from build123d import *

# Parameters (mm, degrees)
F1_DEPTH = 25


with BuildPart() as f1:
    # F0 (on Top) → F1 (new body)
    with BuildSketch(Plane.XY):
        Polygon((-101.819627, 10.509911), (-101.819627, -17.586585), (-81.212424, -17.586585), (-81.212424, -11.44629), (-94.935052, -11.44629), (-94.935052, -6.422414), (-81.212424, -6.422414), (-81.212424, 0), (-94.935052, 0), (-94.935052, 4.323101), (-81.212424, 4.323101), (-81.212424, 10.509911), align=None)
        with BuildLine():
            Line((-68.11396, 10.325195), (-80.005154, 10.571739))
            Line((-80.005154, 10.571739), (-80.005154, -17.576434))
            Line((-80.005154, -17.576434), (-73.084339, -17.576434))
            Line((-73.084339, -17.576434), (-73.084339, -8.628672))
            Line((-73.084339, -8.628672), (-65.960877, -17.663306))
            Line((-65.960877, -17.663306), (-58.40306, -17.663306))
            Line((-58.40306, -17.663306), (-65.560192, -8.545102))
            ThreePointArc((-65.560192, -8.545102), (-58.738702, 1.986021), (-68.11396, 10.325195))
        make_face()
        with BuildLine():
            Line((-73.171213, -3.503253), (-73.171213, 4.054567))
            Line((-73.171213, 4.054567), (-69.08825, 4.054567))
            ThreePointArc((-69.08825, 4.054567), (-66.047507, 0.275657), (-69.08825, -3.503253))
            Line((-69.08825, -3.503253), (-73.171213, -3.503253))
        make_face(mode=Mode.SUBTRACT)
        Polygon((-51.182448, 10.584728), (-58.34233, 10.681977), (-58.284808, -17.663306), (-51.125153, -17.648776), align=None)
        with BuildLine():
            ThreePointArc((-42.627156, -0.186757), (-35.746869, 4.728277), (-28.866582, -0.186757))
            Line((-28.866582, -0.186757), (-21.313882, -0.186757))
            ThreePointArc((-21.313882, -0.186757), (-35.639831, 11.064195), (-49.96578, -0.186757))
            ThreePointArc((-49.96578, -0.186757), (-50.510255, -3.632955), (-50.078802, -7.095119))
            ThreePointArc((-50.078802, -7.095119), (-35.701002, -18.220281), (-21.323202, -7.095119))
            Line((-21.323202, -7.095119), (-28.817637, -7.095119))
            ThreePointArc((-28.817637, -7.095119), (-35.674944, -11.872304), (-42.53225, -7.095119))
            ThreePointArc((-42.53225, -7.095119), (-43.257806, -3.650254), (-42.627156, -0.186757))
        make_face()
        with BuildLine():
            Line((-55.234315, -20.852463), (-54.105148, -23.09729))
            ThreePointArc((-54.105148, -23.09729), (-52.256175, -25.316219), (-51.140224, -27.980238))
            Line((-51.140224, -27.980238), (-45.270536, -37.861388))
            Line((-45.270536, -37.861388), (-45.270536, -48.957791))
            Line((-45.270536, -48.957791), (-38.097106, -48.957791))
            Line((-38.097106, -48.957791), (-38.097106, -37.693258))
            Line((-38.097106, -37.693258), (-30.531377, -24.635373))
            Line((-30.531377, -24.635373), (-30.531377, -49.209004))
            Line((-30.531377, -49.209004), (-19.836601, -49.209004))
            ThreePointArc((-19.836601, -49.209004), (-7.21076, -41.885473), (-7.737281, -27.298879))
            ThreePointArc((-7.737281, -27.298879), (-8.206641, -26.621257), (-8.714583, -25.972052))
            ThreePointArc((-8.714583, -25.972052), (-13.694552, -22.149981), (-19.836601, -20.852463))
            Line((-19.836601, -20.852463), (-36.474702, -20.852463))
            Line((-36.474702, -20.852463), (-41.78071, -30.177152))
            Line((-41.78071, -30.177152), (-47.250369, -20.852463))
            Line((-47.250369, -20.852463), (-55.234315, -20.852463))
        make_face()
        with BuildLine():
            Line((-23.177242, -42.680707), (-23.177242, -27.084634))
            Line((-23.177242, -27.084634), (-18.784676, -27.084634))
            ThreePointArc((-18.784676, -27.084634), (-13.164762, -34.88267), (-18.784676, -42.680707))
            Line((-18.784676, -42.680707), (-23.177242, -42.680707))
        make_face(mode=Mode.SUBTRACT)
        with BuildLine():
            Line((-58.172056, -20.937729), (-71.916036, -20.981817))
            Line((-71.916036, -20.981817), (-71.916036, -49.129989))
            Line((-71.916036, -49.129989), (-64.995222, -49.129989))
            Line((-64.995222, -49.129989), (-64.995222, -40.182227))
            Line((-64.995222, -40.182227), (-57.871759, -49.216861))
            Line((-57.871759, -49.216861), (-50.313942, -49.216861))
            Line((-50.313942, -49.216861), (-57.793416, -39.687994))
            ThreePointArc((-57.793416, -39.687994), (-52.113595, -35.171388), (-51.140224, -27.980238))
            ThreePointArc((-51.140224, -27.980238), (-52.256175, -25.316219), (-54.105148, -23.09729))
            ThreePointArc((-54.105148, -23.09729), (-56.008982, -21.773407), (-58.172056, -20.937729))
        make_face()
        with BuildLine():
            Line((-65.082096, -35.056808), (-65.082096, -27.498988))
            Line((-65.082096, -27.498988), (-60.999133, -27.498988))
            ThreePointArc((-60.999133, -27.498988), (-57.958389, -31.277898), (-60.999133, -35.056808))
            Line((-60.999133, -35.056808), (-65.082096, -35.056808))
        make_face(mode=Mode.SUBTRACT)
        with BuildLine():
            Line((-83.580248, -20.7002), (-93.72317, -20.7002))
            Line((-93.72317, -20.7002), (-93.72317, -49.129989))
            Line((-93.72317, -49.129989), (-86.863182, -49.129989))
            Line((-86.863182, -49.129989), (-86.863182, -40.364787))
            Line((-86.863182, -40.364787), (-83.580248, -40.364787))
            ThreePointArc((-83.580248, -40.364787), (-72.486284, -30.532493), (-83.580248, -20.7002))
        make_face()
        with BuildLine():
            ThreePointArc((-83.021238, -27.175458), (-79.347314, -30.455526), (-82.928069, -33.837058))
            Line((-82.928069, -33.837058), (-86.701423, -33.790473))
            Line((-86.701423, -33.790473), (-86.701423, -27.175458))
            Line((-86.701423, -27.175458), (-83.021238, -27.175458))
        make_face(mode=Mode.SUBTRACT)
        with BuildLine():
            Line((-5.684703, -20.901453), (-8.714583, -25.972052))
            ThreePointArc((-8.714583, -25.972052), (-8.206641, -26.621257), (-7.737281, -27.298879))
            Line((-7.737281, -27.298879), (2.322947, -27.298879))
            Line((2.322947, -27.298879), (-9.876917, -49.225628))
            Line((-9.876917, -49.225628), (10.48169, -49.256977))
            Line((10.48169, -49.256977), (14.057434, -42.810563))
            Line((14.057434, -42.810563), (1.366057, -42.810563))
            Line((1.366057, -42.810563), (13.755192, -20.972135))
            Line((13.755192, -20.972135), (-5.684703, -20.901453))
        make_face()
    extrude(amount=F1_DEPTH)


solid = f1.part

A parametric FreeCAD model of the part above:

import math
import FreeCAD as App
import Part
import Sketcher
from FreeCAD import Vector

doc = App.newDocument("Part")
body = doc.addObject("PartDesign::Body", "Body")
body.AllowCompound = True

sketch1 = body.newObject("Sketcher::SketchObject", "Sketch")
sketch1.AttachmentSupport = (doc.getObject("XY_Plane"), [""])
sketch1.MapMode = "FlatFace"
sketch1.addGeometry(Part.LineSegment(Vector(-101.819627, 10.509911, 0), Vector(-101.819627, -17.586585, 0)), False)
sketch1.addGeometry(Part.LineSegment(Vector(-101.819627, -17.586585, 0), Vector(-81.212424, -17.586585, 0)), False)
sketch1.addGeometry(Part.LineSegment(Vector(-81.212424, -17.586585, 0), Vector(-81.212424, -11.44629, 0)), False)
sketch1.addGeometry(Part.LineSegment(Vector(-81.212424, -11.44629, 0), Vector(-94.935052, -11.44629, 0)), False)
sketch1.addGeometry(Part.LineSegment(Vector(-94.935052, -11.44629, 0), Vector(-94.935052, -6.422414, 0)), False)
sketch1.addGeometry(Part.LineSegment(Vector(-94.935052, -6.422414, 0), Vector(-81.212424, -6.422414, 0)), False)
sketch1.addGeometry(Part.LineSegment(Vector(-81.212424, -6.422414, 0), Vector(-81.212424, 0, 0)), False)
sketch1.addGeometry(Part.LineSegment(Vector(-81.212424, 0, 0), Vector(-94.935052, 0, 0)), False)
sketch1.addGeometry(Part.LineSegment(Vector(-94.935052, 0, 0), Vector(-94.935052, 4.323101, 0)), False)
sketch1.addGeometry(Part.LineSegment(Vector(-94.935052, 4.323101, 0), Vector(-81.212424, 4.323101, 0)), False)
sketch1.addGeometry(Part.LineSegment(Vector(-81.212424, 4.323101, 0), Vector(-81.212424, 10.509911, 0)), False)
sketch1.addGeometry(Part.LineSegment(Vector(-81.212424, 10.509911, 0), Vector(-101.819627, 10.509911, 0)), False)
sketch1.addGeometry(Part.LineSegment(Vector(-68.11396, 10.325195, 0), Vector(-80.005154, 10.571739, 0)), False)
sketch1.addGeometry(Part.LineSegment(Vector(-80.005154, 10.571739, 0), Vector(-80.005154, -17.576434, 0)), False)
sketch1.addGeometry(Part.LineSegment(Vector(-80.005154, -17.576434, 0), Vector(-73.084339, -17.576434, 0)), False)
sketch1.addGeometry(Part.LineSegment(Vector(-73.084339, -17.576434, 0), Vector(-73.084339, -8.628672, 0)), False)
sketch1.addGeometry(Part.LineSegment(Vector(-73.084339, -8.628672, 0), Vector(-65.960877, -17.663306, 0)), False)
sketch1.addGeometry(Part.LineSegment(Vector(-65.960877, -17.663306, 0), Vector(-58.40306, -17.663306, 0)), False)
sketch1.addGeometry(Part.LineSegment(Vector(-58.40306, -17.663306, 0), Vector(-65.560192, -8.545102, 0)), False)
sketch1.addGeometry(Part.ArcOfCircle(Part.Circle(Vector(-68.284179, 0.694206, 0), Vector(0, 0, 1), 9.632493), math.radians(-73.573118), math.radians(88.987453)), False)
sketch1.addGeometry(Part.LineSegment(Vector(-69.08825, -3.503253, 0), Vector(-73.171213, -3.503253, 0)), False)
sketch1.addGeometry(Part.LineSegment(Vector(-73.171213, -3.503253, 0), Vector(-73.171213, 4.054567, 0)), False)
sketch1.addGeometry(Part.LineSegment(Vector(-73.171213, 4.054567, 0), Vector(-69.08825, 4.054567, 0)), False)
sketch1.addGeometry(Part.ArcOfCircle(Part.Circle(Vector(-69.916015, 0.275657, 0), Vector(0, 0, 1), 3.868508), math.radians(-77.644582), math.radians(77.644582)), False)
sketch1.addGeometry(Part.LineSegment(Vector(-51.182448, 10.584728, 0), Vector(-58.34233, 10.681977, 0)), False)
sketch1.addGeometry(Part.LineSegment(Vector(-58.34233, 10.681977, 0), Vector(-58.284808, -17.663306, 0)), False)
sketch1.addGeometry(Part.LineSegment(Vector(-58.284808, -17.663306, 0), Vector(-51.125153, -17.648776, 0)), False)
sketch1.addGeometry(Part.LineSegment(Vector(-51.125153, -17.648776, 0), Vector(-51.182448, 10.584728, 0)), False)
sketch1.addGeometry(Part.ArcOfCircle(Part.Circle(Vector(-35.746869, -2.544909, 0), Vector(0, 0, 1), 7.273186), math.radians(18.918653), math.radians(161.081347)), False)
sketch1.addGeometry(Part.LineSegment(Vector(-28.866582, -0.186757, 0), Vector(-21.313882, -0.186757, 0)), False)
sketch1.addGeometry(Part.ArcOfCircle(Part.Circle(Vector(-35.639831, -3.681968, 0), Vector(0, 0, 1), 14.746163), math.radians(13.711025), math.radians(166.288975)), False)
sketch1.addGeometry(Part.ArcOfCircle(Part.Circle(Vector(-38.04061, -3.83696, 0), Vector(0, 0, 1), 12.471313), math.radians(162.98105), math.radians(195.144379)), False)
sketch1.addGeometry(Part.ArcOfCircle(Part.Circle(Vector(-35.701002, -3.366998, 0), Vector(0, 0, 1), 14.853283), math.radians(-165.463516), math.radians(-14.536484)), False)
sketch1.addGeometry(Part.LineSegment(Vector(-21.323202, -7.095119, 0), Vector(-28.817637, -7.095119, 0)), False)
sketch1.addGeometry(Part.ArcOfCircle(Part.Circle(Vector(-35.674943, -4.562126, 0), Vector(0, 0, 1), 7.310178), math.radians(-159.726473), math.radians(-20.273527)), False)
sketch1.addGeometry(Part.ArcOfCircle(Part.Circle(Vector(-34.121148, -3.524736, 0), Vector(0, 0, 1), 9.13752), math.radians(158.573666), math.radians(203.000476)), False)
sketch1.addGeometry(Part.LineSegment(Vector(-55.234315, -20.852463, 0), Vector(-54.105148, -23.09729, 0)), False)
sketch1.addGeometry(Part.ArcOfCircle(Part.Circle(Vector(-60.571258, -30.365134, 0), Vector(0, 0, 1), 9.727905), math.radians(48.340909), math.radians(75.721764)), False)
sketch1.addGeometry(Part.LineSegment(Vector(-58.172056, -20.937729, 0), Vector(-71.916036, -20.981817, 0)), False)
sketch1.addGeometry(Part.LineSegment(Vector(-71.916036, -20.981817, 0), Vector(-71.916036, -49.129989, 0)), False)
sketch1.addGeometry(Part.LineSegment(Vector(-71.916036, -49.129989, 0), Vector(-64.995222, -49.129989, 0)), False)
sketch1.addGeometry(Part.LineSegment(Vector(-64.995222, -49.129989, 0), Vector(-64.995222, -40.182227, 0)), False)
sketch1.addGeometry(Part.LineSegment(Vector(-64.995222, -40.182227, 0), Vector(-57.871759, -49.216861, 0)), False)
sketch1.addGeometry(Part.LineSegment(Vector(-57.871759, -49.216861, 0), Vector(-50.313942, -49.216861, 0)), False)
sketch1.addGeometry(Part.LineSegment(Vector(-50.313942, -49.216861, 0), Vector(-57.793416, -39.687994, 0)), False)
sketch1.addGeometry(Part.ArcOfCircle(Part.Circle(Vector(-60.571256, -30.365135, 0), Vector(0, 0, 1), 9.727903), math.radians(-73.408044), math.radians(14.191316)), False)
sketch1.addGeometry(Part.LineSegment(Vector(-51.140224, -27.980238, 0), Vector(-45.270536, -37.861388, 0)), False)
sketch1.addGeometry(Part.LineSegment(Vector(-45.270536, -37.861388, 0), Vector(-45.270536, -48.957791, 0)), False)
sketch1.addGeometry(Part.LineSegment(Vector(-45.270536, -48.957791, 0), Vector(-38.097106, -48.957791, 0)), False)
sketch1.addGeometry(Part.LineSegment(Vector(-38.097106, -48.957791, 0), Vector(-38.097106, -37.693258, 0)), False)
sketch1.addGeometry(Part.LineSegment(Vector(-38.097106, -37.693258, 0), Vector(-30.531377, -24.635373, 0)), False)
sketch1.addGeometry(Part.LineSegment(Vector(-30.531377, -24.635373, 0), Vector(-30.531377, -49.209004, 0)), False)
sketch1.addGeometry(Part.LineSegment(Vector(-30.531377, -49.209004, 0), Vector(-19.836601, -49.209004, 0)), False)
sketch1.addGeometry(Part.ArcOfCircle(Part.Circle(Vector(-19.623706, -35.030734, 0), Vector(0, 0, 1), 14.179868), math.radians(-90.860266), math.radians(33.043106)), False)
sketch1.addGeometry(Part.LineSegment(Vector(-7.737281, -27.298879, 0), Vector(2.322947, -27.298879, 0)), False)
sketch1.addGeometry(Part.LineSegment(Vector(2.322947, -27.298879, 0), Vector(-9.876917, -49.225628, 0)), False)
sketch1.addGeometry(Part.LineSegment(Vector(-9.876917, -49.225628, 0), Vector(10.48169, -49.256977, 0)), False)
sketch1.addGeometry(Part.LineSegment(Vector(10.48169, -49.256977, 0), Vector(14.057434, -42.810563, 0)), False)
sketch1.addGeometry(Part.LineSegment(Vector(14.057434, -42.810563, 0), Vector(1.366057, -42.810563, 0)), False)
sketch1.addGeometry(Part.LineSegment(Vector(1.366057, -42.810563, 0), Vector(13.755192, -20.972135, 0)), False)
sketch1.addGeometry(Part.LineSegment(Vector(13.755192, -20.972135, 0), Vector(-5.684703, -20.901453, 0)), False)
sketch1.addGeometry(Part.LineSegment(Vector(-5.684703, -20.901453, 0), Vector(-8.714583, -25.972052, 0)), False)
sketch1.addGeometry(Part.ArcOfCircle(Part.Circle(Vector(-19.62371, -35.030742, 0), Vector(0, 0, 1), 14.179877), math.radians(39.705465), math.radians(90.860249)), False)
sketch1.addGeometry(Part.LineSegment(Vector(-19.836601, -20.852463, 0), Vector(-36.474702, -20.852463, 0)), False)
sketch1.addGeometry(Part.LineSegment(Vector(-36.474702, -20.852463, 0), Vector(-41.78071, -30.177152, 0)), False)
sketch1.addGeometry(Part.LineSegment(Vector(-41.78071, -30.177152, 0), Vector(-47.250369, -20.852463, 0)), False)
sketch1.addGeometry(Part.LineSegment(Vector(-47.250369, -20.852463, 0), Vector(-55.234315, -20.852463, 0)), False)
sketch1.addGeometry(Part.LineSegment(Vector(-18.784676, -42.680707, 0), Vector(-23.177242, -42.680707, 0)), False)
sketch1.addGeometry(Part.LineSegment(Vector(-23.177242, -42.680707, 0), Vector(-23.177242, -27.084634, 0)), False)
sketch1.addGeometry(Part.LineSegment(Vector(-23.177242, -27.084634, 0), Vector(-18.784676, -27.084634, 0)), False)
sketch1.addGeometry(Part.ArcOfCircle(Part.Circle(Vector(-21.384888, -34.882671, 0), Vector(0, 0, 1), 8.220126), math.radians(-71.559319), math.radians(71.559319)), False)
sketch1.addGeometry(Part.LineSegment(Vector(-60.999133, -35.056808, 0), Vector(-65.082096, -35.056808, 0)), False)
sketch1.addGeometry(Part.LineSegment(Vector(-65.082096, -35.056808, 0), Vector(-65.082096, -27.498988, 0)), False)
sketch1.addGeometry(Part.LineSegment(Vector(-65.082096, -27.498988, 0), Vector(-60.999133, -27.498988, 0)), False)
sketch1.addGeometry(Part.ArcOfCircle(Part.Circle(Vector(-61.826897, -31.277898, 0), Vector(0, 0, 1), 3.868508), math.radians(-77.6446), math.radians(77.6446)), False)
sketch1.addGeometry(Part.LineSegment(Vector(-83.580248, -20.7002, 0), Vector(-93.72317, -20.7002, 0)), False)
sketch1.addGeometry(Part.LineSegment(Vector(-93.72317, -20.7002, 0), Vector(-93.72317, -49.129989, 0)), False)
sketch1.addGeometry(Part.LineSegment(Vector(-93.72317, -49.129989, 0), Vector(-86.863182, -49.129989, 0)), False)
sketch1.addGeometry(Part.LineSegment(Vector(-86.863182, -49.129989, 0), Vector(-86.863182, -40.364787, 0)), False)
sketch1.addGeometry(Part.LineSegment(Vector(-86.863182, -40.364787, 0), Vector(-83.580248, -40.364787, 0)), False)
sketch1.addGeometry(Part.ArcOfCircle(Part.Circle(Vector(-82.39032, -30.532494, 0), Vector(0, 0, 1), 9.904036), math.radians(-96.900517), math.radians(96.900517)), False)
sketch1.addGeometry(Part.LineSegment(Vector(-86.701423, -27.175458, 0), Vector(-83.021238, -27.175458, 0)), False)
sketch1.addGeometry(Part.ArcOfCircle(Part.Circle(Vector(-82.690235, -30.50228, 0), Vector(0, 0, 1), 3.343248), math.radians(-94.079383), math.radians(95.681954)), False)
sketch1.addGeometry(Part.LineSegment(Vector(-82.928069, -33.837058, 0), Vector(-86.701423, -33.790473, 0)), False)
sketch1.addGeometry(Part.LineSegment(Vector(-86.701423, -33.790473, 0), Vector(-86.701423, -27.175458, 0)), False)
sketch1.addConstraint(Sketcher.Constraint("Coincident", 0, 2, 1, 1))
sketch1.addConstraint(Sketcher.Constraint("Coincident", 1, 2, 2, 1))
sketch1.addConstraint(Sketcher.Constraint("Coincident", 2, 2, 3, 1))
sketch1.addConstraint(Sketcher.Constraint("Coincident", 3, 2, 4, 1))
sketch1.addConstraint(Sketcher.Constraint("Coincident", 4, 2, 5, 1))
sketch1.addConstraint(Sketcher.Constraint("Coincident", 5, 2, 6, 1))
sketch1.addConstraint(Sketcher.Constraint("Coincident", 6, 2, 7, 1))
sketch1.addConstraint(Sketcher.Constraint("Coincident", 7, 2, 8, 1))
sketch1.addConstraint(Sketcher.Constraint("Coincident", 8, 2, 9, 1))
sketch1.addConstraint(Sketcher.Constraint("Coincident", 9, 2, 10, 1))
sketch1.addConstraint(Sketcher.Constraint("Coincident", 10, 2, 11, 1))
sketch1.addConstraint(Sketcher.Constraint("Coincident", 11, 2, 0, 1))
sketch1.addConstraint(Sketcher.Constraint("Coincident", 12, 2, 13, 1))
sketch1.addConstraint(Sketcher.Constraint("Coincident", 13, 2, 14, 1))
sketch1.addConstraint(Sketcher.Constraint("Coincident", 14, 2, 15, 1))
sketch1.addConstraint(Sketcher.Constraint("Coincident", 15, 2, 16, 1))
sketch1.addConstraint(Sketcher.Constraint("Coincident", 16, 2, 17, 1))
sketch1.addConstraint(Sketcher.Constraint("Coincident", 17, 2, 18, 1))
sketch1.addConstraint(Sketcher.Constraint("Coincident", 18, 2, 19, 1))
sketch1.addConstraint(Sketcher.Constraint("Coincident", 19, 2, 12, 1))
sketch1.addConstraint(Sketcher.Constraint("Coincident", 20, 2, 21, 1))
sketch1.addConstraint(Sketcher.Constraint("Coincident", 21, 2, 22, 1))
sketch1.addConstraint(Sketcher.Constraint("Coincident", 22, 2, 23, 2))
sketch1.addConstraint(Sketcher.Constraint("Coincident", 23, 1, 20, 1))
sketch1.addConstraint(Sketcher.Constraint("Coincident", 24, 2, 25, 1))
sketch1.addConstraint(Sketcher.Constraint("Coincident", 25, 2, 26, 1))
sketch1.addConstraint(Sketcher.Constraint("Coincident", 26, 2, 27, 1))
sketch1.addConstraint(Sketcher.Constraint("Coincident", 27, 2, 24, 1))
sketch1.addConstraint(Sketcher.Constraint("Coincident", 28, 1, 29, 1))
sketch1.addConstraint(Sketcher.Constraint("Coincident", 29, 2, 30, 1))
sketch1.addConstraint(Sketcher.Constraint("Coincident", 30, 2, 31, 1))
sketch1.addConstraint(Sketcher.Constraint("Coincident", 31, 2, 32, 1))
sketch1.addConstraint(Sketcher.Constraint("Coincident", 32, 2, 33, 1))
sketch1.addConstraint(Sketcher.Constraint("Coincident", 33, 2, 34, 2))
sketch1.addConstraint(Sketcher.Constraint("Coincident", 34, 1, 35, 2))
sketch1.addConstraint(Sketcher.Constraint("Coincident", 35, 1, 28, 2))
sketch1.addConstraint(Sketcher.Constraint("Coincident", 36, 2, 37, 1))
sketch1.addConstraint(Sketcher.Constraint("Coincident", 37, 2, 38, 1))
sketch1.addConstraint(Sketcher.Constraint("Coincident", 38, 2, 39, 1))
sketch1.addConstraint(Sketcher.Constraint("Coincident", 39, 2, 40, 1))
sketch1.addConstraint(Sketcher.Constraint("Coincident", 40, 2, 41, 1))
sketch1.addConstraint(Sketcher.Constraint("Coincident", 41, 2, 42, 1))
sketch1.addConstraint(Sketcher.Constraint("Coincident", 42, 2, 43, 1))
sketch1.addConstraint(Sketcher.Constraint("Coincident", 43, 2, 44, 1))
sketch1.addConstraint(Sketcher.Constraint("Coincident", 44, 2, 45, 1))
sketch1.addConstraint(Sketcher.Constraint("Coincident", 45, 2, 46, 1))
sketch1.addConstraint(Sketcher.Constraint("Coincident", 46, 2, 47, 1))
sketch1.addConstraint(Sketcher.Constraint("Coincident", 47, 2, 48, 1))
sketch1.addConstraint(Sketcher.Constraint("Coincident", 48, 2, 49, 1))
sketch1.addConstraint(Sketcher.Constraint("Coincident", 49, 2, 50, 1))
sketch1.addConstraint(Sketcher.Constraint("Coincident", 50, 2, 51, 1))
sketch1.addConstraint(Sketcher.Constraint("Coincident", 51, 2, 52, 1))
sketch1.addConstraint(Sketcher.Constraint("Coincident", 52, 2, 53, 1))
sketch1.addConstraint(Sketcher.Constraint("Coincident", 53, 2, 54, 1))
sketch1.addConstraint(Sketcher.Constraint("Coincident", 54, 2, 55, 1))
sketch1.addConstraint(Sketcher.Constraint("Coincident", 55, 2, 56, 1))
sketch1.addConstraint(Sketcher.Constraint("Coincident", 56, 2, 57, 1))
sketch1.addConstraint(Sketcher.Constraint("Coincident", 57, 2, 58, 1))
sketch1.addConstraint(Sketcher.Constraint("Coincident", 58, 2, 59, 1))
sketch1.addConstraint(Sketcher.Constraint("Coincident", 59, 2, 60, 1))
sketch1.addConstraint(Sketcher.Constraint("Coincident", 60, 2, 61, 1))
sketch1.addConstraint(Sketcher.Constraint("Coincident", 61, 2, 62, 1))
sketch1.addConstraint(Sketcher.Constraint("Coincident", 62, 2, 63, 1))
sketch1.addConstraint(Sketcher.Constraint("Coincident", 63, 2, 64, 1))
sketch1.addConstraint(Sketcher.Constraint("Coincident", 64, 2, 65, 1))
sketch1.addConstraint(Sketcher.Constraint("Coincident", 65, 2, 66, 1))
sketch1.addConstraint(Sketcher.Constraint("Coincident", 66, 2, 36, 1))
sketch1.addConstraint(Sketcher.Constraint("Coincident", 67, 2, 68, 1))
sketch1.addConstraint(Sketcher.Constraint("Coincident", 68, 2, 69, 1))
sketch1.addConstraint(Sketcher.Constraint("Coincident", 69, 2, 70, 2))
sketch1.addConstraint(Sketcher.Constraint("Coincident", 70, 1, 67, 1))
sketch1.addConstraint(Sketcher.Constraint("Coincident", 71, 2, 72, 1))
sketch1.addConstraint(Sketcher.Constraint("Coincident", 72, 2, 73, 1))
sketch1.addConstraint(Sketcher.Constraint("Coincident", 73, 2, 74, 2))
sketch1.addConstraint(Sketcher.Constraint("Coincident", 74, 1, 71, 1))
sketch1.addConstraint(Sketcher.Constraint("Coincident", 75, 2, 76, 1))
sketch1.addConstraint(Sketcher.Constraint("Coincident", 76, 2, 77, 1))
sketch1.addConstraint(Sketcher.Constraint("Coincident", 77, 2, 78, 1))
sketch1.addConstraint(Sketcher.Constraint("Coincident", 78, 2, 79, 1))
sketch1.addConstraint(Sketcher.Constraint("Coincident", 79, 2, 80, 1))
sketch1.addConstraint(Sketcher.Constraint("Coincident", 80, 2, 75, 1))
sketch1.addConstraint(Sketcher.Constraint("Coincident", 81, 2, 82, 2))
sketch1.addConstraint(Sketcher.Constraint("Coincident", 82, 1, 83, 1))
sketch1.addConstraint(Sketcher.Constraint("Coincident", 83, 2, 84, 1))
sketch1.addConstraint(Sketcher.Constraint("Coincident", 84, 2, 81, 1))
sketch1.addConstraint(Sketcher.Constraint("Vertical", 0))
sketch1.addConstraint(Sketcher.Constraint("Horizontal", 1))
sketch1.addConstraint(Sketcher.Constraint("Vertical", 2))
sketch1.addConstraint(Sketcher.Constraint("Horizontal", 3))
sketch1.addConstraint(Sketcher.Constraint("Vertical", 4))
sketch1.addConstraint(Sketcher.Constraint("Horizontal", 5))
sketch1.addConstraint(Sketcher.Constraint("Vertical", 6))
sketch1.addConstraint(Sketcher.Constraint("Horizontal", 7))
sketch1.addConstraint(Sketcher.Constraint("Vertical", 8))
sketch1.addConstraint(Sketcher.Constraint("Horizontal", 9))
sketch1.addConstraint(Sketcher.Constraint("Vertical", 10))
sketch1.addConstraint(Sketcher.Constraint("Horizontal", 11))
sketch1.addConstraint(Sketcher.Constraint("Vertical", 13))
sketch1.addConstraint(Sketcher.Constraint("Horizontal", 14))
sketch1.addConstraint(Sketcher.Constraint("Vertical", 15))
sketch1.addConstraint(Sketcher.Constraint("Horizontal", 17))
sketch1.addConstraint(Sketcher.Constraint("Horizontal", 20))
sketch1.addConstraint(Sketcher.Constraint("Vertical", 21))
sketch1.addConstraint(Sketcher.Constraint("Horizontal", 22))
sketch1.addConstraint(Sketcher.Constraint("Horizontal", 29))
sketch1.addConstraint(Sketcher.Constraint("Horizontal", 33))
sketch1.addConstraint(Sketcher.Constraint("Vertical", 39))
sketch1.addConstraint(Sketcher.Constraint("Horizontal", 40))
sketch1.addConstraint(Sketcher.Constraint("Vertical", 41))
sketch1.addConstraint(Sketcher.Constraint("Horizontal", 43))
sketch1.addConstraint(Sketcher.Constraint("Vertical", 47))
sketch1.addConstraint(Sketcher.Constraint("Horizontal", 48))
sketch1.addConstraint(Sketcher.Constraint("Vertical", 49))
sketch1.addConstraint(Sketcher.Constraint("Vertical", 51))
sketch1.addConstraint(Sketcher.Constraint("Horizontal", 52))
sketch1.addConstraint(Sketcher.Constraint("Horizontal", 54))
sketch1.addConstraint(Sketcher.Constraint("Horizontal", 58))
sketch1.addConstraint(Sketcher.Constraint("Horizontal", 63))
sketch1.addConstraint(Sketcher.Constraint("Horizontal", 66))
sketch1.addConstraint(Sketcher.Constraint("Horizontal", 67))
sketch1.addConstraint(Sketcher.Constraint("Vertical", 68))
sketch1.addConstraint(Sketcher.Constraint("Horizontal", 69))
sketch1.addConstraint(Sketcher.Constraint("Horizontal", 71))
sketch1.addConstraint(Sketcher.Constraint("Vertical", 72))
sketch1.addConstraint(Sketcher.Constraint("Horizontal", 73))
sketch1.addConstraint(Sketcher.Constraint("Horizontal", 75))
sketch1.addConstraint(Sketcher.Constraint("Vertical", 76))
sketch1.addConstraint(Sketcher.Constraint("Horizontal", 77))
sketch1.addConstraint(Sketcher.Constraint("Vertical", 78))
sketch1.addConstraint(Sketcher.Constraint("Horizontal", 79))
sketch1.addConstraint(Sketcher.Constraint("Horizontal", 81))
sketch1.addConstraint(Sketcher.Constraint("Vertical", 84))
sketch1.addConstraint(Sketcher.Constraint("Coincident", 45, 3, 37, 3))
sketch1.addConstraint(Sketcher.Constraint("Coincident", 62, 3, 53, 3))
sketch1.addConstraint(Sketcher.Constraint("PointOnObject", 6, 2, -1))
sketch1.addConstraint(Sketcher.Constraint("Radius", 23, 3.868508))
sketch1.addConstraint(Sketcher.Constraint("Radius", 34, 7.310178))
sketch1.addConstraint(Sketcher.Constraint("Radius", 35, 9.13752))
sketch1.addConstraint(Sketcher.Constraint("Radius", 53, 14.179868))
sketch1.addConstraint(Sketcher.Constraint("Radius", 82, 3.343248))
sketch1.addConstraint(Sketcher.Constraint("DistanceX", 29, 1, 29, 2, 7.5527))
sketch1.addConstraint(Sketcher.Constraint("DistanceX", 63, 2, 63, 1, 16.638101))
sketch1.addConstraint(Sketcher.Constraint("DistanceY", 8, 1, 8, 2, 4.323101))
sketch1.addConstraint(Sketcher.Constraint("Radius", 19, 9.632493))
sketch1.addConstraint(Sketcher.Constraint("Radius", 28, 7.273186))
sketch1.addConstraint(Sketcher.Constraint("Radius", 30, 14.746163))
sketch1.addConstraint(Sketcher.Constraint("Radius", 31, 12.471313))
sketch1.addConstraint(Sketcher.Constraint("Radius", 32, 14.853283))
sketch1.addConstraint(Sketcher.Constraint("Radius", 37, 9.727905))
sketch1.addConstraint(Sketcher.Constraint("Radius", 45, 9.727903))
sketch1.addConstraint(Sketcher.Constraint("Radius", 62, 14.179877))
sketch1.addConstraint(Sketcher.Constraint("Radius", 70, 8.220126))
sketch1.addConstraint(Sketcher.Constraint("Radius", 74, 3.868508))
sketch1.addConstraint(Sketcher.Constraint("Radius", 80, 9.904036))
sketch1.addConstraint(Sketcher.Constraint("DistanceX", 48, 1, 48, 2, 7.17343))
sketch1.addConstraint(Sketcher.Constraint("DistanceX", 75, 2, 75, 1, 10.142922))
sketch1.addConstraint(Sketcher.Constraint("DistanceX", 77, 1, 77, 2, 6.859988))
sketch1.addConstraint(Sketcher.Constraint("DistanceY", 10, 1, 10, 2, 6.18681))
sketch1.addConstraint(Sketcher.Constraint("DistanceY", 15, 1, 15, 2, 8.947762))
sketch1.addConstraint(Sketcher.Constraint("DistanceY", 21, 1, 21, 2, 7.55782))
sketch1.addConstraint(Sketcher.Constraint("DistanceY", 51, 2, 51, 1, 24.573631))
sketch1.addConstraint(Sketcher.Constraint("DistanceY", 72, 1, 72, 2, 7.55782))
sketch1.addConstraint(Sketcher.Constraint("DistanceY", 76, 2, 76, 1, 28.429789))
sketch1.addConstraint(Sketcher.Constraint("DistanceY", 74, 3, -1, 1, 31.277898))
sketch1.addConstraint(Sketcher.Constraint("DistanceX", 31, 2, -1, 1, 50.078802))
sketch1.addConstraint(Sketcher.Constraint("DistanceX", 32, 2, -1, 1, 21.323202))
sketch1.addConstraint(Sketcher.Constraint("DistanceX", 52, 2, -1, 1, 19.836601))
sketch1.addConstraint(Sketcher.Constraint("DistanceX", 62, 2, -1, 1, 19.836601))
sketch1.addConstraint(Sketcher.Constraint("DistanceY", 75, 2, -1, 1, 20.7002))
sketch1.addConstraint(Sketcher.Constraint("Distance", 12, 11.89375))
sketch1.addConstraint(Sketcher.Constraint("Distance", 25, 28.345341))
sketch1.addConstraint(Sketcher.Constraint("Distance", 26, 7.15967))
sketch1.addConstraint(Sketcher.Constraint("Distance", 36, 2.51282))
sketch1.addConstraint(Sketcher.Constraint("Distance", 38, 13.744051))
sketch1.addConstraint(Sketcher.Constraint("Distance", 55, 25.09221))
sketch1.addConstraint(Sketcher.Constraint("Distance", 56, 20.358631))
sketch1.addConstraint(Sketcher.Constraint("Distance", 59, 25.107919))
sketch1.addConstraint(Sketcher.Constraint("Distance", 83, 3.773642))
sketch1.addConstraint(Sketcher.Constraint("DistanceX", 1, 1, 1, 2, 20.607203))
sketch1.addConstraint(Sketcher.Constraint("DistanceX", 3, 2, 3, 1, 13.722628))
sketch1.addConstraint(Sketcher.Constraint("DistanceX", 5, 1, 5, 2, 13.722628))
sketch1.addConstraint(Sketcher.Constraint("DistanceX", 7, 2, 7, 1, 13.722628))
sketch1.addConstraint(Sketcher.Constraint("DistanceX", 9, 1, 9, 2, 13.722628))
sketch1.addConstraint(Sketcher.Constraint("DistanceX", 14, 1, 14, 2, 6.920815))
sketch1.addConstraint(Sketcher.Constraint("DistanceX", 17, 1, 17, 2, 7.557817))
sketch1.addConstraint(Sketcher.Constraint("DistanceX", 20, 2, 20, 1, 4.082963))
sketch1.addConstraint(Sketcher.Constraint("DistanceX", 22, 1, 22, 2, 4.082963))
sketch1.addConstraint(Sketcher.Constraint("DistanceX", 33, 2, 33, 1, 7.494435))
sketch1.addConstraint(Sketcher.Constraint("DistanceX", 40, 1, 40, 2, 6.920814))
sketch1.addConstraint(Sketcher.Constraint("DistanceX", 43, 1, 43, 2, 7.557817))
sketch1.addConstraint(Sketcher.Constraint("DistanceX", 52, 1, 52, 2, 10.694776))
sketch1.addConstraint(Sketcher.Constraint("DistanceX", 54, 1, 54, 2, 10.060228))
sketch1.addConstraint(Sketcher.Constraint("DistanceX", 58, 2, 58, 1, 12.691377))
sketch1.addConstraint(Sketcher.Constraint("DistanceX", 66, 2, 66, 1, 7.983946))
sketch1.addConstraint(Sketcher.Constraint("DistanceX", 67, 2, 67, 1, 4.392566))
sketch1.addConstraint(Sketcher.Constraint("DistanceX", 69, 1, 69, 2, 4.392566))
sketch1.addConstraint(Sketcher.Constraint("DistanceX", 71, 2, 71, 1, 4.082963))
sketch1.addConstraint(Sketcher.Constraint("DistanceX", 73, 1, 73, 2, 4.082963))
sketch1.addConstraint(Sketcher.Constraint("DistanceX", 79, 1, 79, 2, 3.282934))
sketch1.addConstraint(Sketcher.Constraint("DistanceX", 81, 1, 81, 2, 3.680185))
sketch1.addConstraint(Sketcher.Constraint("DistanceY", 0, 2, 0, 1, 28.096496))
sketch1.addConstraint(Sketcher.Constraint("DistanceY", 2, 1, 2, 2, 6.140295))
sketch1.addConstraint(Sketcher.Constraint("DistanceY", 4, 1, 4, 2, 5.023876))
sketch1.addConstraint(Sketcher.Constraint("DistanceY", 13, 2, 13, 1, 28.148173))
sketch1.addConstraint(Sketcher.Constraint("DistanceY", 39, 2, 39, 1, 28.148172))
sketch1.addConstraint(Sketcher.Constraint("DistanceY", 41, 1, 41, 2, 8.947762))
sketch1.addConstraint(Sketcher.Constraint("DistanceY", 47, 2, 47, 1, 11.096403))
sketch1.addConstraint(Sketcher.Constraint("DistanceY", 49, 1, 49, 2, 11.264533))
sketch1.addConstraint(Sketcher.Constraint("DistanceY", 68, 1, 68, 2, 15.596073))
sketch1.addConstraint(Sketcher.Constraint("DistanceY", 78, 1, 78, 2, 8.765202))
sketch1.addConstraint(Sketcher.Constraint("DistanceY", 84, 1, 84, 2, 6.615015))
sketch1.addConstraint(Sketcher.Constraint("DistanceX", 19, 3, -1, 1, 68.284179))
sketch1.addConstraint(Sketcher.Constraint("DistanceX", 28, 3, -1, 1, 35.746869))
sketch1.addConstraint(Sketcher.Constraint("DistanceY", 28, 3, -1, 1, 2.544909))
sketch1.addConstraint(Sketcher.Constraint("DistanceX", 30, 3, -1, 1, 35.639831))
sketch1.addConstraint(Sketcher.Constraint("DistanceX", 31, 3, -1, 1, 38.04061))
sketch1.addConstraint(Sketcher.Constraint("DistanceY", 31, 3, -1, 1, 3.83696))
sketch1.addConstraint(Sketcher.Constraint("DistanceX", 35, 3, -1, 1, 34.121148))
sketch1.addConstraint(Sketcher.Constraint("DistanceX", 62, 3, -1, 1, 19.62371))
sketch1.addConstraint(Sketcher.Constraint("DistanceY", 62, 3, -1, 1, 35.030742))
sketch1.addConstraint(Sketcher.Constraint("DistanceX", 70, 3, -1, 1, 21.384888))
sketch1.addConstraint(Sketcher.Constraint("DistanceY", 70, 3, -1, 1, 34.882671))
sketch1.addConstraint(Sketcher.Constraint("DistanceX", 80, 3, -1, 1, 82.39032))
sketch1.addConstraint(Sketcher.Constraint("DistanceY", 82, 3, -1, 1, 30.50228))
sketch1.addConstraint(Sketcher.Constraint("DistanceX", 3, 2, -1, 1, 94.935052))
sketch1.addConstraint(Sketcher.Constraint("DistanceY", -1, 1, 12, 2, 10.571739))
sketch1.addConstraint(Sketcher.Constraint("DistanceX", 14, 2, -1, 1, 73.084339))
sketch1.addConstraint(Sketcher.Constraint("DistanceX", 17, 2, -1, 1, 58.40306))
sketch1.addConstraint(Sketcher.Constraint("DistanceX", 18, 2, -1, 1, 65.560192))
sketch1.addConstraint(Sketcher.Constraint("DistanceX", 22, 2, -1, 1, 69.08825))
sketch1.addConstraint(Sketcher.Constraint("DistanceX", 24, 2, -1, 1, 58.34233))
sketch1.addConstraint(Sketcher.Constraint("DistanceX", 28, 1, -1, 1, 28.866582))
sketch1.addConstraint(Sketcher.Constraint("DistanceY", 32, 2, -1, 1, 7.095119))
sketch1.addConstraint(Sketcher.Constraint("DistanceX", 34, 1, -1, 1, 42.53225))
sketch1.addConstraint(Sketcher.Constraint("DistanceY", 34, 1, -1, 1, 7.095119))
sketch1.addConstraint(Sketcher.Constraint("DistanceY", 36, 2, -1, 1, 23.09729))
sketch1.addConstraint(Sketcher.Constraint("DistanceY", 37, 2, -1, 1, 20.937729))
sketch1.addConstraint(Sketcher.Constraint("DistanceY", 39, 2, -1, 1, 49.129989))
sketch1.addConstraint(Sketcher.Constraint("DistanceX", 40, 2, -1, 1, 64.995222))
sketch1.addConstraint(Sketcher.Constraint("DistanceX", 42, 2, -1, 1, 57.871759))
sketch1.addConstraint(Sketcher.Constraint("DistanceY", 42, 2, -1, 1, 49.216861))
sketch1.addConstraint(Sketcher.Constraint("DistanceY", 47, 2, -1, 1, 48.957791))
sketch1.addConstraint(Sketcher.Constraint("DistanceX", 53, 2, -1, 1, 7.737281))
sketch1.addConstraint(Sketcher.Constraint("DistanceX", -1, 1, 56, 2, 10.48169))
sketch1.addConstraint(Sketcher.Constraint("DistanceX", -1, 1, 59, 2, 13.755192))
sketch1.addConstraint(Sketcher.Constraint("DistanceX", 64, 2, -1, 1, 41.78071))
sketch1.addConstraint(Sketcher.Constraint("DistanceY", 64, 2, -1, 1, 30.177152))
sketch1.addConstraint(Sketcher.Constraint("DistanceX", 65, 2, -1, 1, 47.250369))
sketch1.addConstraint(Sketcher.Constraint("DistanceX", 82, 1, -1, 1, 82.928069))
sketch1.addConstraint(Sketcher.Constraint("Distance", 16, 11.505143))
sketch1.addConstraint(Sketcher.Constraint("Distance", 18, 11.591643))
sketch1.addConstraint(Sketcher.Constraint("Distance", 24, 7.160542))
sketch1.addConstraint(Sketcher.Constraint("Distance", 27, 28.233562))
sketch1.addConstraint(Sketcher.Constraint("Distance", 44, 12.113705))
sketch1.addConstraint(Sketcher.Constraint("Distance", 46, 11.493057))
sketch1.addConstraint(Sketcher.Constraint("Distance", 50, 15.091342))
sketch1.addConstraint(Sketcher.Constraint("Distance", 57, 7.371716))
sketch1.addConstraint(Sketcher.Constraint("Distance", 60, 19.440023))
sketch1.addConstraint(Sketcher.Constraint("Distance", 61, 5.906873))
sketch1.addConstraint(Sketcher.Constraint("Distance", 65, 10.810504))
sketch1.addConstraint(Sketcher.Constraint("DistanceY", -1, 1, 23, 3, 0.275657))
sketch1.addConstraint(Sketcher.Constraint("DistanceX", 74, 3, -1, 1, 61.826897))
sketch1.addConstraint(Sketcher.Constraint("DistanceX", 82, 3, -1, 1, 82.690235))
sketch1.addConstraint(Sketcher.Constraint("DistanceY", -1, 1, 24, 2, 10.681977))
sketch1.addConstraint(Sketcher.Constraint("DistanceX", 25, 2, -1, 1, 58.284808))
sketch1.addConstraint(Sketcher.Constraint("DistanceY", 26, 2, -1, 1, 17.648776))
sketch1.addConstraint(Sketcher.Constraint("DistanceY", 56, 2, -1, 1, 49.256977))
sketch1.addConstraint(Sketcher.Constraint("DistanceX", -1, 1, 57, 2, 14.057434))
sketch1.addConstraint(Sketcher.Constraint("DistanceY", 60, 2, -1, 1, 20.901453))
pad1 = body.newObject("PartDesign::Pad", "Pad")
pad1.Profile = sketch1
pad1.Length = 25

doc.recompute()
